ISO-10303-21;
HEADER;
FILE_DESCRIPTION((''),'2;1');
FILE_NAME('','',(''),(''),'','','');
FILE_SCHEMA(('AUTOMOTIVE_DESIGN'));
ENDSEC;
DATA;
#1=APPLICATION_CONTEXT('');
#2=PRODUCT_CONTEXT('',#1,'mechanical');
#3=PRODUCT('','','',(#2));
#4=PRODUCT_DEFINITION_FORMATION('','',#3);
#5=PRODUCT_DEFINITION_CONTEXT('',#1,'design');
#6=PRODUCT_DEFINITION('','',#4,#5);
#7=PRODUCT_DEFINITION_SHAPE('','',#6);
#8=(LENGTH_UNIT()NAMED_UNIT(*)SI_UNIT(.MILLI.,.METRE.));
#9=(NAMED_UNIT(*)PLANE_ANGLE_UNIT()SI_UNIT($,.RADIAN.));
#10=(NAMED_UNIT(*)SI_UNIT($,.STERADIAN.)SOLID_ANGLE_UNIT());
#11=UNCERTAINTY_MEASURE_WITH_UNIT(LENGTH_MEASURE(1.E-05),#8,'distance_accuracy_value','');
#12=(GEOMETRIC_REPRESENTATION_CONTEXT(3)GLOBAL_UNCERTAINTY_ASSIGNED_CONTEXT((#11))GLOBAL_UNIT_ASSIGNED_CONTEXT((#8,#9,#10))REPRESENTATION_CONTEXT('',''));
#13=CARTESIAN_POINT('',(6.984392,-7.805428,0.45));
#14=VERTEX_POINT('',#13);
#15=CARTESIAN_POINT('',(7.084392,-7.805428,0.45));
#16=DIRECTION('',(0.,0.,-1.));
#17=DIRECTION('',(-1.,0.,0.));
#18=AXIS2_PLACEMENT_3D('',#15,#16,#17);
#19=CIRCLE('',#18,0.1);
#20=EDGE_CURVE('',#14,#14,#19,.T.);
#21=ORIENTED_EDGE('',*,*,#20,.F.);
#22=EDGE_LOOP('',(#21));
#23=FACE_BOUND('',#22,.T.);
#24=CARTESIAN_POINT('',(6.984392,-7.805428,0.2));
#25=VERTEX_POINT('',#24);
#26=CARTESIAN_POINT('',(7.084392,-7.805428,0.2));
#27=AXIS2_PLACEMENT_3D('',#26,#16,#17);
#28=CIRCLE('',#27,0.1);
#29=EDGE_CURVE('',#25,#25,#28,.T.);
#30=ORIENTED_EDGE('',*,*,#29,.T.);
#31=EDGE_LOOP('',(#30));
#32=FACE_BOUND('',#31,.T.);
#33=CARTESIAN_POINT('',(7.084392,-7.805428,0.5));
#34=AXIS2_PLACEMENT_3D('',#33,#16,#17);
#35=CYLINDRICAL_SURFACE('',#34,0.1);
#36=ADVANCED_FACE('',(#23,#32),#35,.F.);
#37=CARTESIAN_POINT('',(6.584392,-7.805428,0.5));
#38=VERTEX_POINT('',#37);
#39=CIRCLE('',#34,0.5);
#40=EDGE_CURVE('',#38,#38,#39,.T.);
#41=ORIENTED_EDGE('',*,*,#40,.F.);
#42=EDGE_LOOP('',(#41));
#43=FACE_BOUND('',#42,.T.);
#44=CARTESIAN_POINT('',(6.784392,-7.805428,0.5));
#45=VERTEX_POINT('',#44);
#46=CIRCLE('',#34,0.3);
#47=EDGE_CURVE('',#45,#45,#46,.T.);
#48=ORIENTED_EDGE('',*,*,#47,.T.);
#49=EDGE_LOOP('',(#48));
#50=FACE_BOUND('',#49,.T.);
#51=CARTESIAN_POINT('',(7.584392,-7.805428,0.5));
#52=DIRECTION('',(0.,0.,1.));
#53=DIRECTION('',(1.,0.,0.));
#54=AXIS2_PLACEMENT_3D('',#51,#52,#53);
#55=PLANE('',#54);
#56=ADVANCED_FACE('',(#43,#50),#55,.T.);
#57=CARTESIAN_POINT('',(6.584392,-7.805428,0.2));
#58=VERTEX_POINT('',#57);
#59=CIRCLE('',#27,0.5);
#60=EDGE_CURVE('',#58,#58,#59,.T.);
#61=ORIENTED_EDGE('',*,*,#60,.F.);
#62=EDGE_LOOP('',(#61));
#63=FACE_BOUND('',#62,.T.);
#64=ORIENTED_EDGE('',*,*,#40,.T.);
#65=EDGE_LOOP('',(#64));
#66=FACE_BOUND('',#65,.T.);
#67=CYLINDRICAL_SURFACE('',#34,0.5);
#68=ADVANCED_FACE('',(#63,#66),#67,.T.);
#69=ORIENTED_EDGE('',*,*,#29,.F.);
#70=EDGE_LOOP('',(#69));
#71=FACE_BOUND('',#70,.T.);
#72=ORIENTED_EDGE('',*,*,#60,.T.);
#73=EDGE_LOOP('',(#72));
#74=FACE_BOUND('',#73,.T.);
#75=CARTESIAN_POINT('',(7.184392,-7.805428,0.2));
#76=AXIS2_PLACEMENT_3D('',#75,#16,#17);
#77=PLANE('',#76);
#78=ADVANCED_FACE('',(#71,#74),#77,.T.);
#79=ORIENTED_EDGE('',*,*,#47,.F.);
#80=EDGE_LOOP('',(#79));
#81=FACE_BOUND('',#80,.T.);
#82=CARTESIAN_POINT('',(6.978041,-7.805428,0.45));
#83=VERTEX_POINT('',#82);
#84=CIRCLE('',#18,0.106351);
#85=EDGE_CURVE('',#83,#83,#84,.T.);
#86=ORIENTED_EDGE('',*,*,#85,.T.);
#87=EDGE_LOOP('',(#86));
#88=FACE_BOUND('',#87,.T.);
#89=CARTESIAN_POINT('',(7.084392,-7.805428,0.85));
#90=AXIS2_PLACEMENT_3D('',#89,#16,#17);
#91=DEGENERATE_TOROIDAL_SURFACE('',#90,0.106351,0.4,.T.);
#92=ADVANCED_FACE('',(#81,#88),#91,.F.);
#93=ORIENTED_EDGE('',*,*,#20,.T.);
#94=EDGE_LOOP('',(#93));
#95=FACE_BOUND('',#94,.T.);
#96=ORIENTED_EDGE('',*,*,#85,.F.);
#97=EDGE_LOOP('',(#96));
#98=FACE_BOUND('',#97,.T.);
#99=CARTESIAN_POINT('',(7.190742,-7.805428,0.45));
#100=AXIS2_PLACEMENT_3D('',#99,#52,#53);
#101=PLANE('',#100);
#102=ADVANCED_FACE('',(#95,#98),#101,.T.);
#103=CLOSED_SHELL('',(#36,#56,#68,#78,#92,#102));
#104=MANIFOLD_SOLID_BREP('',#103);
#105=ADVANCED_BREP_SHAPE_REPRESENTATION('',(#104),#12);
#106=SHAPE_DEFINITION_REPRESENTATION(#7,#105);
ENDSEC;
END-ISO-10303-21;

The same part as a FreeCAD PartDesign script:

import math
import FreeCAD as App
import Part
import Sketcher
from FreeCAD import Vector
Q = App.Units.Quantity

doc = App.newDocument("Part")
body = doc.addObject("PartDesign::Body", "Body")

# Sketch on XZ plane
sketch1 = body.newObject("Sketcher::SketchObject", "Sketch")
sketch1.AttachmentSupport = (doc.getObject("XZ_Plane"), [""])
sketch1.MapMode = "FlatFace"
sketch1.AttachmentOffset = App.Placement(Vector(0, 0, 7.805428), App.Rotation())
sketch1.addGeometry([
    Part.LineSegment(Vector(7.584, 0.2, 0), Vector(7.584, 0.5, 0)),  # 0
    Part.LineSegment(Vector(7.584, 0.5, 0), Vector(7.384, 0.5, 0)),  # 1
    Part.ArcOfCircle(Part.Circle(Vector(7.191, 0.85, 0), Vector(0, 0, 1), 0.4), math.radians(-90), math.radians(-61)),  # 2
    Part.LineSegment(Vector(7.191, 0.45, 0), Vector(7.184, 0.45, 0)),  # 3
    Part.LineSegment(Vector(7.184, 0.45, 0), Vector(7.184, 0.2, 0)),  # 4
    Part.LineSegment(Vector(7.184, 0.2, 0), Vector(7.584, 0.2, 0)),  # 5
], False)
sketch1.addGeometry(Part.LineSegment(Vector(7.084, 0.85, 0), Vector(7.084, 0.2, 0)), True)  # axis
sketch1.addConstraint([
    Sketcher.Constraint("Coincident", 0, 2, 1, 1),
    Sketcher.Constraint("Coincident", 1, 2, 2, 2),
    Sketcher.Constraint("Tangent", 2, 1, 3, 1),
    Sketcher.Constraint("Coincident", 3, 2, 4, 1),
    Sketcher.Constraint("Coincident", 4, 2, 5, 1),
    Sketcher.Constraint("Coincident", 5, 2, 0, 1),
    Sketcher.Constraint("Vertical", 0),
    Sketcher.Constraint("Horizontal", 1),
    Sketcher.Constraint("Horizontal", 3),
    Sketcher.Constraint("Vertical", 4),
    Sketcher.Constraint("Horizontal", 5),
    Sketcher.Constraint("Vertical", 6),
    Sketcher.Constraint("Horizontal", 2, 3, 6, 1),
    Sketcher.Constraint("Horizontal", 5, 2, 6, 2),
    Sketcher.Constraint("Radius", 2, Q("0.4 mm")),
    Sketcher.Constraint("DistanceX", 1, 2, 1, 1, Q("0.2 mm")),
    Sketcher.Constraint("DistanceX", 5, 1, 5, 2, Q("0.4 mm")),
    Sketcher.Constraint("DistanceY", 0, 1, 0, 2, Q("0.3 mm")),
    Sketcher.Constraint("DistanceY", 4, 2, 4, 1, Q("0.25 mm")),
    Sketcher.Constraint("DistanceY", -1, 1, 0, 2, Q("0.5 mm")),
    Sketcher.Constraint("DistanceX", 6, 1, 3, 2, Q("0.1 mm")),
    Sketcher.Constraint("DistanceX", -1, 1, 0, 2, Q("7.584392 mm")),
])
revolution = body.newObject("PartDesign::Revolution", "Revolution")
revolution.Profile = sketch1
revolution.ReferenceAxis = (sketch1, ["Axis0"])
revolution.Angle = 360

doc.recompute()
